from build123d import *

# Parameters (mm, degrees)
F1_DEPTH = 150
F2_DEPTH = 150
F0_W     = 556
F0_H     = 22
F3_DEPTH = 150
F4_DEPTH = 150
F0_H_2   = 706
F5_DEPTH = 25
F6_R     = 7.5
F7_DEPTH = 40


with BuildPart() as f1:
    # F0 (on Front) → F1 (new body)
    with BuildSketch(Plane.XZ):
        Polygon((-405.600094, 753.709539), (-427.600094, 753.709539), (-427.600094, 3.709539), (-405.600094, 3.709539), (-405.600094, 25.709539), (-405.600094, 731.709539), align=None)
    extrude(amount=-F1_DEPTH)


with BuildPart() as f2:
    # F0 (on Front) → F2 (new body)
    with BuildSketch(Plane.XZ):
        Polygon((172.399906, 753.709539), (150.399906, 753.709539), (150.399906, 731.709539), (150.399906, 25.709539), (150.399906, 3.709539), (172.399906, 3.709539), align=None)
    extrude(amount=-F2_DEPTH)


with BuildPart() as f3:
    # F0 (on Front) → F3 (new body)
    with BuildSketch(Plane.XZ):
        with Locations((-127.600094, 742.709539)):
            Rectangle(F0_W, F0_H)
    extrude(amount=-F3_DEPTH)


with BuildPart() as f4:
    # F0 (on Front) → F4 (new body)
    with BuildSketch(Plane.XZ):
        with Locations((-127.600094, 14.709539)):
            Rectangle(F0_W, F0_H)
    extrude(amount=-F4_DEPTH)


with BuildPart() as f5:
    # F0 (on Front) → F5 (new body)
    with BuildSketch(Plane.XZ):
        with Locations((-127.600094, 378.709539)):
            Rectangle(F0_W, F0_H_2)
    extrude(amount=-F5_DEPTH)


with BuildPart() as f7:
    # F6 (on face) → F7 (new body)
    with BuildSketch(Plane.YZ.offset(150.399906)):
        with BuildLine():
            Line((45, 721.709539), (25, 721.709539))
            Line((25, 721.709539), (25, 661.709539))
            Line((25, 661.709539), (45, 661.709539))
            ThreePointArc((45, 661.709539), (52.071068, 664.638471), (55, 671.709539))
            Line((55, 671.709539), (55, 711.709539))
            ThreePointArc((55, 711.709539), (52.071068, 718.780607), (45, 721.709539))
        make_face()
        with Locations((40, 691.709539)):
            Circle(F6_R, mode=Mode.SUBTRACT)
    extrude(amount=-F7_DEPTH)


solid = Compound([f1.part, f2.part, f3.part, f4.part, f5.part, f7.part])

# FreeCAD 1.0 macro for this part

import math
import FreeCAD as App
import Part
import Sketcher

V = App.Vector
Q = App.Units.Quantity


def add_polygon(sketch, points):
    """Adds a closed chain of lines whose ends are joined by coincident constraints."""
    first, n = sketch.GeometryCount, len(points)
    for a, b in zip(points, points[1:] + points[:1]):
        sketch.addGeometry(Part.LineSegment(App.Vector(*a, 0), App.Vector(*b, 0)), False)
    for i in range(n):
        sketch.addConstraint(Sketcher.Constraint("Coincident", first + i, 2, first + (i + 1) % n, 1))

doc = App.newDocument("Part")
body = doc.addObject("PartDesign::Body", "Body")

sketch1 = doc.addObject("Sketcher::SketchObject", "Sketch")
body.addObject(sketch1)
sketch1.AttachmentSupport = (doc.XZ_Plane, [""])
sketch1.MapMode = "FlatFace"
add_polygon(sketch1, [(-406, 754), (-428, 754), (-428, 4), (-406, 4)])
sketch1.addConstraint([
    Sketcher.Constraint("Horizontal", 0),
    Sketcher.Constraint("Vertical", 1),
    Sketcher.Constraint("Horizontal", 2),
    Sketcher.Constraint("Vertical", 3),
    Sketcher.Constraint("DistanceX", 0, 2, 0, 1, Q("22 mm")),
    Sketcher.Constraint("DistanceY", 1, 2, 1, 1, Q("750 mm")),
    Sketcher.Constraint("DistanceY", -1, 1, 0, 2, Q("753.709539 mm")),
    Sketcher.Constraint("DistanceX", 0, 2, -1, 1, Q("427.600094 mm")),
])
pad1 = doc.addObject("PartDesign::Pad", "Pad")
body.addObject(pad1)
pad1.Profile = sketch1
pad1.Length = 150
pad1.Reversed = True
body2 = doc.addObject("PartDesign::Body", "Body001")

sketch2 = doc.addObject("Sketcher::SketchObject", "Sketch001")
body2.addObject(sketch2)
sketch2.AttachmentSupport = (doc.getObject("XZ_Plane001"), [""])
sketch2.MapMode = "FlatFace"
add_polygon(sketch2, [(172, 754), (150, 754), (150, 4), (172, 4)])
sketch2.addConstraint([
    Sketcher.Constraint("Horizontal", 0),
    Sketcher.Constraint("Vertical", 1),
    Sketcher.Constraint("Horizontal", 2),
    Sketcher.Constraint("Vertical", 3),
    Sketcher.Constraint("DistanceX", 0, 2, 0, 1, Q("22 mm")),
    Sketcher.Constraint("DistanceY", 1, 2, 1, 1, Q("750 mm")),
    Sketcher.Constraint("DistanceY", -1, 1, 0, 2, Q("753.709539 mm")),
    Sketcher.Constraint("DistanceX", -1, 1, 0, 2, Q("150.399906 mm")),
])
pad2 = doc.addObject("PartDesign::Pad", "Pad001")
body2.addObject(pad2)
pad2.Profile = sketch2
pad2.Length = 150
pad2.Reversed = True
body3 = doc.addObject("PartDesign::Body", "Body002")

sketch3 = doc.addObject("Sketcher::SketchObject", "Sketch002")
body3.addObject(sketch3)
sketch3.AttachmentSupport = (doc.getObject("XZ_Plane002"), [""])
sketch3.MapMode = "FlatFace"
add_polygon(sketch3, [(-406, 754), (-406, 732), (150, 732), (150, 754)])
sketch3.addConstraint([
    Sketcher.Constraint("Vertical", 0),
    Sketcher.Constraint("Horizontal", 1),
    Sketcher.Constraint("Vertical", 2),
    Sketcher.Constraint("Horizontal", 3),
    Sketcher.Constraint("DistanceX", 1, 1, 1, 2, Q("556 mm")),
    Sketcher.Constraint("DistanceY", 0, 2, 0, 1, Q("22 mm")),
    Sketcher.Constraint("DistanceY", -1, 1, 0, 2, Q("731.709539 mm")),
    Sketcher.Constraint("DistanceX", 0, 2, -1, 1, Q("405.600094 mm")),
])
pad3 = doc.addObject("PartDesign::Pad", "Pad002")
body3.addObject(pad3)
pad3.Profile = sketch3
pad3.Length = 150
pad3.Reversed = True
body4 = doc.addObject("PartDesign::Body", "Body003")

sketch4 = doc.addObject("Sketcher::SketchObject", "Sketch003")
body4.addObject(sketch4)
sketch4.AttachmentSupport = (doc.getObject("XZ_Plane003"), [""])
sketch4.MapMode = "FlatFace"
add_polygon(sketch4, [(-406, 26), (-406, 4), (150, 4), (150, 26)])
sketch4.addConstraint([
    Sketcher.Constraint("Vertical", 0),
    Sketcher.Constraint("Horizontal", 1),
    Sketcher.Constraint("Vertical", 2),
    Sketcher.Constraint("Horizontal", 3),
    Sketcher.Constraint("DistanceX", 1, 1, 1, 2, Q("556 mm")),
    Sketcher.Constraint("DistanceY", 0, 2, 0, 1, Q("22 mm")),
    Sketcher.Constraint("DistanceY", -1, 1, 0, 2, Q("3.709539 mm")),
    Sketcher.Constraint("DistanceX", 0, 2, -1, 1, Q("405.600094 mm")),
])
pad4 = doc.addObject("PartDesign::Pad", "Pad003")
body4.addObject(pad4)
pad4.Profile = sketch4
pad4.Length = 150
pad4.Reversed = True
body5 = doc.addObject("PartDesign::Body", "Body004")

sketch5 = doc.addObject("Sketcher::SketchObject", "Sketch004")
body5.addObject(sketch5)
sketch5.AttachmentSupport = (doc.getObject("XZ_Plane004"), [""])
sketch5.MapMode = "FlatFace"
add_polygon(sketch5, [(-406, 732), (-406, 26), (150, 26), (150, 732)])
sketch5.addConstraint([
    Sketcher.Constraint("Vertical", 0),
    Sketcher.Constraint("Horizontal", 1),
    Sketcher.Constraint("Vertical", 2),
    Sketcher.Constraint("Horizontal", 3),
    Sketcher.Constraint("DistanceX", 1, 1, 1, 2, Q("556 mm")),
    Sketcher.Constraint("DistanceY", 0, 2, 0, 1, Q("706 mm")),
    Sketcher.Constraint("DistanceY", -1, 1, 0, 2, Q("25.709539 mm")),
    Sketcher.Constraint("DistanceX", 0, 2, -1, 1, Q("405.600094 mm")),
])
pad5 = doc.addObject("PartDesign::Pad", "Pad004")
body5.addObject(pad5)
pad5.Profile = sketch5
pad5.Length = 25
pad5.Reversed = True
body6 = doc.addObject("PartDesign::Body", "Body005")

sketch6 = doc.addObject("Sketcher::SketchObject", "Sketch005")
body6.addObject(sketch6)
sketch6.AttachmentSupport = (doc.getObject("YZ_Plane005"), [""])
sketch6.MapMode = "FlatFace"
sketch6.AttachmentOffset = App.Placement(V(0, 0, 150.399906), App.Rotation())
sketch6.addGeometry([
    Part.LineSegment(V(45, 722, 0), V(25, 722, 0)),
    Part.LineSegment(V(25, 722, 0), V(25, 662, 0)),
    Part.LineSegment(V(25, 662, 0), V(45, 662, 0)),
    Part.ArcOfCircle(Part.Circle(V(45, 672, 0), V(0, 0, 1), 10), math.radians(-90), math.radians(0)),
    Part.LineSegment(V(55, 672, 0), V(55, 712, 0)),
    Part.ArcOfCircle(Part.Circle(V(45, 712, 0), V(0, 0, 1), 10), math.radians(0), math.radians(90)),
    Part.Circle(V(40, 692, 0), V(0, 0, 1), 8),
], False)
sketch6.addConstraint([
    Sketcher.Constraint("Coincident", 0, 2, 1, 1),
    Sketcher.Constraint("Coincident", 1, 2, 2, 1),
    Sketcher.Constraint("Tangent", 2, 2, 3, 1),
    Sketcher.Constraint("Tangent", 3, 2, 4, 1),
    Sketcher.Constraint("Tangent", 4, 2, 5, 1),
    Sketcher.Constraint("Tangent", 5, 2, 0, 1),
    Sketcher.Constraint("Horizontal", 0),
    Sketcher.Constraint("Vertical", 1),
    Sketcher.Constraint("Horizontal", 2),
    Sketcher.Constraint("Vertical", 4),
    Sketcher.Constraint("Equal", 3, 5),
    Sketcher.Constraint("Diameter", 6, Q("15 mm")),
    Sketcher.Constraint("Radius", 3, Q("9.999999 mm")),
    Sketcher.Constraint("DistanceX", 0, 2, 0, 1, Q("20 mm")),
    Sketcher.Constraint("DistanceY", 1, 2, 1, 1, Q("60 mm")),
    Sketcher.Constraint("DistanceX", -1, 1, 3, 3, Q("45.000001 mm")),
    Sketcher.Constraint("DistanceX", -1, 1, 6, 3, Q("40 mm")),
    Sketcher.Constraint("DistanceY", 3, 3, 6, 3, Q("20.000001 mm")),
    Sketcher.Constraint("DistanceY", -1, 1, 3, 3, Q("671.709538 mm")),
])
pad6 = doc.addObject("PartDesign::Pad", "Pad005")
body6.addObject(pad6)
pad6.Profile = sketch6
pad6.Length = 40
pad6.Reversed = True

doc.recompute()
